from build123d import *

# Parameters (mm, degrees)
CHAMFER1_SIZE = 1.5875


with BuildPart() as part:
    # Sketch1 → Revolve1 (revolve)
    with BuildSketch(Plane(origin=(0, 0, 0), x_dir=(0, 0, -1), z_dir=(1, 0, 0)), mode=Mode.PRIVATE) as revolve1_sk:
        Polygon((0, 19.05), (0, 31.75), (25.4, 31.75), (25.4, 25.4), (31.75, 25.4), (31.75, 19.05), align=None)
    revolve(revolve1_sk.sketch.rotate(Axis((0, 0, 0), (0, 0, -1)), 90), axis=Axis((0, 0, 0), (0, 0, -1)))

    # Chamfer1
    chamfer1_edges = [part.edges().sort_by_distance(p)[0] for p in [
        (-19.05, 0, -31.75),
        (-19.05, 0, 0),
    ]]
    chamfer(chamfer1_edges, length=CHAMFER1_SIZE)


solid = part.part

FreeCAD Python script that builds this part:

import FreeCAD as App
import Part
import Sketcher
Q = App.Units.Quantity


def edges_at(feature, points):
    """Names of the edges that pass closest to the given points."""
    edges = feature.Shape.Edges
    near = lambda p: min(range(len(edges)), key=lambda i: edges[i].distToShape(Part.Vertex(*p))[0])
    return sorted({f"Edge{near(p) + 1}" for p in points})


def add_polygon(sketch, points):
    """Adds a closed chain of lines whose ends are joined by coincident constraints."""
    first, n = sketch.GeometryCount, len(points)
    for a, b in zip(points, points[1:] + points[:1]):
        sketch.addGeometry(Part.LineSegment(App.Vector(*a, 0), App.Vector(*b, 0)), False)
    for i in range(n):
        sketch.addConstraint(Sketcher.Constraint("Coincident", first + i, 2, first + (i + 1) % n, 1))

doc = App.newDocument("Part")
body = doc.addObject("PartDesign::Body", "Body")

# Sketch on YZ plane
sketch1 = body.newObject("Sketcher::SketchObject", "Sketch")
sketch1.AttachmentSupport = (doc.getObject("YZ_Plane"), [""])
sketch1.MapMode = "FlatFace"
add_polygon(sketch1, [(32, 0), (19, 0), (19, -32), (25, -32), (25, -25), (32, -25)])  # lines 0-5
sketch1.addConstraint([
    Sketcher.Constraint("Horizontal", 0),
    Sketcher.Constraint("Vertical", 1),
    Sketcher.Constraint("Horizontal", 2),
    Sketcher.Constraint("Vertical", 3),
    Sketcher.Constraint("Horizontal", 4),
    Sketcher.Constraint("Vertical", 5),
    Sketcher.Constraint("PointOnObject", 0, 2, -1),
    Sketcher.Constraint("Equal", 2, 4),
    Sketcher.Constraint("Equal", 4, 3),
    Sketcher.Constraint("DistanceY", 5, 1, 5, 2, Q("1 in")),
    Sketcher.Constraint("DistanceX", 0, 2, 0, 1, Q("0.5 in")),
    Sketcher.Constraint("DistanceX", -1, 1, 2, 2, Q("1 in")),
])
revolution = body.newObject("PartDesign::Revolution", "Revolution")
revolution.Profile = sketch1
revolution.ReferenceAxis = (sketch1, ["V_Axis"])
revolution.Angle = 360
doc.recompute()

chamfer = body.newObject("PartDesign::Chamfer", "Chamfer")
chamfer.Base = (revolution, edges_at(revolution, [(-19.05, 0, -31.75), (-19.05, 0, 0)]))
chamfer.Size = Q("0.0625 in")

doc.recompute()
